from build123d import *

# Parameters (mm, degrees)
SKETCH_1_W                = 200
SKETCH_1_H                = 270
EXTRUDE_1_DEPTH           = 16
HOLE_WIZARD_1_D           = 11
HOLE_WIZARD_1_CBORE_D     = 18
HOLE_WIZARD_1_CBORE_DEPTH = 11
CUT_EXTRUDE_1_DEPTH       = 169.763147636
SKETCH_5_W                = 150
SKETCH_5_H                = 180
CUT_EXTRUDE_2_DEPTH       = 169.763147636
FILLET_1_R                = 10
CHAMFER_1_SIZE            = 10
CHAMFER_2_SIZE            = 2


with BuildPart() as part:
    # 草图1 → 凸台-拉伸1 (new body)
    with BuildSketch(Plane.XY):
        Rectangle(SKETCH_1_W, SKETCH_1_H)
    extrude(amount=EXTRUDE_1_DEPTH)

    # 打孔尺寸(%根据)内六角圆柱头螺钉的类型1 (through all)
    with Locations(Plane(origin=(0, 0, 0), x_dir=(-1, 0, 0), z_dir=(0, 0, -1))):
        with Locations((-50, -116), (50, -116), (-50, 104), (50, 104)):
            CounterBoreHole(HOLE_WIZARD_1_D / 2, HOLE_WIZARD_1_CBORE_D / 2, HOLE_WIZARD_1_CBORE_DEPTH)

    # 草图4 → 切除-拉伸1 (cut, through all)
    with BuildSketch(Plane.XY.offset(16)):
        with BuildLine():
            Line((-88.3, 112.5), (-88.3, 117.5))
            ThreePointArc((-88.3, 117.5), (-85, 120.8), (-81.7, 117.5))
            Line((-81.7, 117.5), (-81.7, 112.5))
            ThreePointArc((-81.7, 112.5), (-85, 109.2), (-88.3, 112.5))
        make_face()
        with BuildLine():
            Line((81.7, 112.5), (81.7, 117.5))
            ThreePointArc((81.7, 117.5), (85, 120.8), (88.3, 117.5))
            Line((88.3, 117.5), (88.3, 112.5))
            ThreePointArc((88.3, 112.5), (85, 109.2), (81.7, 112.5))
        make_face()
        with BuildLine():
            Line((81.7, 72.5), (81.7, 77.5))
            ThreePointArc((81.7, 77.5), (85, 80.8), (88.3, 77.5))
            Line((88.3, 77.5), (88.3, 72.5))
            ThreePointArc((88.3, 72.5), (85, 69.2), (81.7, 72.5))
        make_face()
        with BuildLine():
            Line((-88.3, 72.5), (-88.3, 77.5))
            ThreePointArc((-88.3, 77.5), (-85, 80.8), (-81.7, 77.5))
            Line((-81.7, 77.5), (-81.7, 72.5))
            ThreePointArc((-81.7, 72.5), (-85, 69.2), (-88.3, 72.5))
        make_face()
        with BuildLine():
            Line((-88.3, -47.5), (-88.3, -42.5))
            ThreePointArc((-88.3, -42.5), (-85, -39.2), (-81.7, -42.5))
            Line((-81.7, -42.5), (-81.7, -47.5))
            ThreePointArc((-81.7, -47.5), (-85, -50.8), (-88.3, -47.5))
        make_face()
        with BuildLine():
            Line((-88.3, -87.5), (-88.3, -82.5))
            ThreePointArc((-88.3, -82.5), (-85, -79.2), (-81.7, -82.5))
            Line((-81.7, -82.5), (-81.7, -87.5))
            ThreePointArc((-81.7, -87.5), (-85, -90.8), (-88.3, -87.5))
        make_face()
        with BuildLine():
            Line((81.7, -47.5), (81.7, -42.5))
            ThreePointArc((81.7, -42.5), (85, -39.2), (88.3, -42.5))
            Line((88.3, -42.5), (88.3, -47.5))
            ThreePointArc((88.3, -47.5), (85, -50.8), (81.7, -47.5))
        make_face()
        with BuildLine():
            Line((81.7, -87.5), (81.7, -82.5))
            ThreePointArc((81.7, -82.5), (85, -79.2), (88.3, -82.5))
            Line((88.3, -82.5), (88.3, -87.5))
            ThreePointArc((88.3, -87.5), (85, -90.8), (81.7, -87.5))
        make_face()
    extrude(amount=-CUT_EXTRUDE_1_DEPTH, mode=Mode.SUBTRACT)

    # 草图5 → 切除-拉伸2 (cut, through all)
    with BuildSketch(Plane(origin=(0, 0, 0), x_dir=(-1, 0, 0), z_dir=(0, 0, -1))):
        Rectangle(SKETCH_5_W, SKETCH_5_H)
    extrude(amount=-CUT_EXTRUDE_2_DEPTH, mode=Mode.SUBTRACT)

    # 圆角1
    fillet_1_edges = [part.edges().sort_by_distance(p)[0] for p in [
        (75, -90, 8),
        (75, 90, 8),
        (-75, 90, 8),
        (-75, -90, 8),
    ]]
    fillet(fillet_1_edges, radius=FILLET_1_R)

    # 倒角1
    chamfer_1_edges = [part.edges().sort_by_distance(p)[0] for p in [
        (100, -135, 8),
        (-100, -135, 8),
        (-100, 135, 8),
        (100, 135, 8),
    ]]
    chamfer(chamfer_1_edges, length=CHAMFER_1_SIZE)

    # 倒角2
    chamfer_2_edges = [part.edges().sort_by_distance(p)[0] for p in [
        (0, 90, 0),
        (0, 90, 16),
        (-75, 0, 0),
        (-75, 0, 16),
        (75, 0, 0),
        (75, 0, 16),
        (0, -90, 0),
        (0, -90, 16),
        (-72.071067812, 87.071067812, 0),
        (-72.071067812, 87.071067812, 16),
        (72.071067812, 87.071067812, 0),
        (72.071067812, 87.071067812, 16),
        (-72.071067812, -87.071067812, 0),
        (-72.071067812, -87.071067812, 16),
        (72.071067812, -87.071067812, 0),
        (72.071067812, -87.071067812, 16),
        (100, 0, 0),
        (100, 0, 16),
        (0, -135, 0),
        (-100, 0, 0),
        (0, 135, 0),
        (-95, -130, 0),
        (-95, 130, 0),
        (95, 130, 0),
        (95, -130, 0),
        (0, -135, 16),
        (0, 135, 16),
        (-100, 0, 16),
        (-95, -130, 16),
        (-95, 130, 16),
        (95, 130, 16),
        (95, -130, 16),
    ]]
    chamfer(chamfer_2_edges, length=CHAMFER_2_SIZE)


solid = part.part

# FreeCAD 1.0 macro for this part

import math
import FreeCAD as App
import Part
import Sketcher


def edges_at(feature, points):
    """Names of the edges that pass closest to the given points."""
    edges = feature.Shape.Edges
    near = lambda p: min(range(len(edges)), key=lambda i: edges[i].distToShape(Part.Vertex(*p))[0])
    return sorted({f"Edge{near(p) + 1}" for p in points})

doc = App.newDocument("Part")
body = doc.addObject("PartDesign::Body", "Body")

# Sketch on XY plane
sketch1 = body.newObject("Sketcher::SketchObject", "Sketch")
sketch1.AttachmentSupport = (doc.getObject("XY_Plane"), [""])
sketch1.MapMode = "FlatFace"
sketch1.addGeometry([
    Part.LineSegment(App.Vector(-100, 135, 0), App.Vector(-100, -135, 0)),
    Part.LineSegment(App.Vector(-100, -135, 0), App.Vector(100, -135, 0)),
    Part.LineSegment(App.Vector(100, -135, 0), App.Vector(100, 135, 0)),
    Part.LineSegment(App.Vector(100, 135, 0), App.Vector(-100, 135, 0)),
], False)
sketch1.addConstraint([
    Sketcher.Constraint("Coincident", 0, 2, 1, 1),
    Sketcher.Constraint("Coincident", 1, 2, 2, 1),
    Sketcher.Constraint("Coincident", 2, 2, 3, 1),
    Sketcher.Constraint("Coincident", 3, 2, 0, 1),
    Sketcher.Constraint("Vertical", 0),
    Sketcher.Constraint("Horizontal", 1),
    Sketcher.Constraint("Vertical", 2),
    Sketcher.Constraint("Horizontal", 3),
    Sketcher.Constraint("Symmetric", 0, 2, 2, 2, -1, 1),
    Sketcher.Constraint("DistanceX", 1, 1, 1, 2, 200.0),
    Sketcher.Constraint("DistanceY", 0, 2, 0, 1, 270.0),
])
pad1 = body.newObject("PartDesign::Pad", "Pad")
pad1.Profile = sketch1
pad1.Length = 16

# Sketch on XY plane
sketch2 = body.newObject("Sketcher::SketchObject", "Sketch001")
sketch2.AttachmentSupport = (doc.getObject("XY_Plane"), [""])
sketch2.MapMode = "FlatFace"
sketch2.addGeometry([
    Part.Circle(App.Vector(50, -116, 0), App.Vector(0, 0, 1), 6),
    Part.Circle(App.Vector(-50, -116, 0), App.Vector(0, 0, 1), 6),
    Part.Circle(App.Vector(50, 104, 0), App.Vector(0, 0, 1), 6),
    Part.Circle(App.Vector(-50, 104, 0), App.Vector(0, 0, 1), 6),
], False)
sketch2.addConstraint([
    Sketcher.Constraint("Equal", 0, 1),
    Sketcher.Constraint("Equal", 1, 2),
    Sketcher.Constraint("Equal", 2, 3),
    Sketcher.Constraint("Symmetric", 0, 3, 1, 3, -2),
    Sketcher.Constraint("Symmetric", 2, 3, 3, 3, -2),
    Sketcher.Constraint("Vertical", 0, 3, 2, 3),
    Sketcher.Constraint("Diameter", 0, 11.0),
    Sketcher.Constraint("DistanceX", -1, 1, 0, 3, 50.0),
    Sketcher.Constraint("DistanceY", 0, 3, -1, 1, 116.0),
    Sketcher.Constraint("DistanceY", -1, 1, 2, 3, 104.0),
])
doc.recompute()
hole = body.newObject("PartDesign::Hole", "Hole")
hole.Profile = sketch2
hole.ThreadType = "None"
hole.Diameter = 11
hole.DepthType = "ThroughAll"
hole.HoleCutType = "Counterbore"
hole.HoleCutDiameter = 18
hole.HoleCutDepth = 11
hole.Reversed = True

# Sketch on XY plane
sketch3 = body.newObject("Sketcher::SketchObject", "Sketch002")
sketch3.AttachmentSupport = (doc.getObject("XY_Plane"), [""])
sketch3.MapMode = "FlatFace"
sketch3.AttachmentOffset = App.Placement(App.Vector(0, 0, 16), App.Rotation())
sketch3.addGeometry([
    Part.LineSegment(App.Vector(-88.3, 117.5, 0), App.Vector(-88.3, 112.5, 0)),  # 0
    Part.ArcOfCircle(Part.Circle(App.Vector(-85, 112.5, 0), App.Vector(0, 0, 1), 3.3), math.radians(180), math.radians(360)),  # 1
    Part.LineSegment(App.Vector(-81.7, 112.5, 0), App.Vector(-81.7, 117.5, 0)),  # 2
    Part.ArcOfCircle(Part.Circle(App.Vector(-85, 117.5, 0), App.Vector(0, 0, 1), 3.3), math.radians(0), math.radians(180)),  # 3
    Part.LineSegment(App.Vector(81.7, 117.5, 0), App.Vector(81.7, 112.5, 0)),  # 4
    Part.ArcOfCircle(Part.Circle(App.Vector(85, 112.5, 0), App.Vector(0, 0, 1), 3.3), math.radians(180), math.radians(360)),  # 5
    Part.LineSegment(App.Vector(88.3, 112.5, 0), App.Vector(88.3, 117.5, 0)),  # 6
    Part.ArcOfCircle(Part.Circle(App.Vector(85, 117.5, 0), App.Vector(0, 0, 1), 3.3), math.radians(0), math.radians(180)),  # 7
    Part.LineSegment(App.Vector(81.7, 77.5, 0), App.Vector(81.7, 72.5, 0)),  # 8
    Part.ArcOfCircle(Part.Circle(App.Vector(85, 72.5, 0), App.Vector(0, 0, 1), 3.3), math.radians(180), math.radians(360)),  # 9
    Part.LineSegment(App.Vector(88.3, 72.5, 0), App.Vector(88.3, 77.5, 0)),  # 10
    Part.ArcOfCircle(Part.Circle(App.Vector(85, 77.5, 0), App.Vector(0, 0, 1), 3.3), math.radians(0), math.radians(180)),  # 11
    Part.LineSegment(App.Vector(-88.3, 77.5, 0), App.Vector(-88.3, 72.5, 0)),  # 12
    Part.ArcOfCircle(Part.Circle(App.Vector(-85, 72.5, 0), App.Vector(0, 0, 1), 3.3), math.radians(180), math.radians(360)),  # 13
    Part.LineSegment(App.Vector(-81.7, 72.5, 0), App.Vector(-81.7, 77.5, 0)),  # 14
    Part.ArcOfCircle(Part.Circle(App.Vector(-85, 77.5, 0), App.Vector(0, 0, 1), 3.3), math.radians(0), math.radians(180)),  # 15
    Part.LineSegment(App.Vector(-88.3, -42.5, 0), App.Vector(-88.3, -47.5, 0)),  # 16
    Part.ArcOfCircle(Part.Circle(App.Vector(-85, -47.5, 0), App.Vector(0, 0, 1), 3.3), math.radians(180), math.radians(360)),  # 17
    Part.LineSegment(App.Vector(-81.7, -47.5, 0), App.Vector(-81.7, -42.5, 0)),  # 18
    Part.ArcOfCircle(Part.Circle(App.Vector(-85, -42.5, 0), App.Vector(0, 0, 1), 3.3), math.radians(0), math.radians(180)),  # 19
    Part.LineSegment(App.Vector(-88.3, -82.5, 0), App.Vector(-88.3, -87.5, 0)),  # 20
    Part.ArcOfCircle(Part.Circle(App.Vector(-85, -87.5, 0), App.Vector(0, 0, 1), 3.3), math.radians(180), math.radians(360)),  # 21
    Part.LineSegment(App.Vector(-81.7, -87.5, 0), App.Vector(-81.7, -82.5, 0)),  # 22
    Part.ArcOfCircle(Part.Circle(App.Vector(-85, -82.5, 0), App.Vector(0, 0, 1), 3.3), math.radians(0), math.radians(180)),  # 23
    Part.LineSegment(App.Vector(81.7, -42.5, 0), App.Vector(81.7, -47.5, 0)),  # 24
    Part.ArcOfCircle(Part.Circle(App.Vector(85, -47.5, 0), App.Vector(0, 0, 1), 3.3), math.radians(180), math.radians(360)),  # 25
    Part.LineSegment(App.Vector(88.3, -47.5, 0), App.Vector(88.3, -42.5, 0)),  # 26
    Part.ArcOfCircle(Part.Circle(App.Vector(85, -42.5, 0), App.Vector(0, 0, 1), 3.3), math.radians(0), math.radians(180)),  # 27
    Part.LineSegment(App.Vector(81.7, -82.5, 0), App.Vector(81.7, -87.5, 0)),  # 28
    Part.ArcOfCircle(Part.Circle(App.Vector(85, -87.5, 0), App.Vector(0, 0, 1), 3.3), math.radians(180), math.radians(360)),  # 29
    Part.LineSegment(App.Vector(88.3, -87.5, 0), App.Vector(88.3, -82.5, 0)),  # 30
    Part.ArcOfCircle(Part.Circle(App.Vector(85, -82.5, 0), App.Vector(0, 0, 1), 3.3), math.radians(0), math.radians(180)),  # 31
], False)
sketch3.addConstraint([
    Sketcher.Constraint("Tangent", 0, 2, 1, 1),
    Sketcher.Constraint("Tangent", 1, 2, 2, 1),
    Sketcher.Constraint("Tangent", 2, 2, 3, 1),
    Sketcher.Constraint("Tangent", 3, 2, 0, 1),
    Sketcher.Constraint("Tangent", 4, 2, 5, 1),
    Sketcher.Constraint("Tangent", 5, 2, 6, 1),
    Sketcher.Constraint("Tangent", 6, 2, 7, 1),
    Sketcher.Constraint("Tangent", 7, 2, 4, 1),
    Sketcher.Constraint("Tangent", 8, 2, 9, 1),
    Sketcher.Constraint("Tangent", 9, 2, 10, 1),
    Sketcher.Constraint("Tangent", 10, 2, 11, 1),
    Sketcher.Constraint("Tangent", 11, 2, 8, 1),
    Sketcher.Constraint("Tangent", 12, 2, 13, 1),
    Sketcher.Constraint("Tangent", 13, 2, 14, 1),
    Sketcher.Constraint("Tangent", 14, 2, 15, 1),
    Sketcher.Constraint("Tangent", 15, 2, 12, 1),
    Sketcher.Constraint("Tangent", 16, 2, 17, 1),
    Sketcher.Constraint("Tangent", 17, 2, 18, 1),
    Sketcher.Constraint("Tangent", 18, 2, 19, 1),
    Sketcher.Constraint("Tangent", 19, 2, 16, 1),
    Sketcher.Constraint("Tangent", 20, 2, 21, 1),
    Sketcher.Constraint("Tangent", 21, 2, 22, 1),
    Sketcher.Constraint("Tangent", 22, 2, 23, 1),
    Sketcher.Constraint("Tangent", 23, 2, 20, 1),
    Sketcher.Constraint("Tangent", 24, 2, 25, 1),
    Sketcher.Constraint("Tangent", 25, 2, 26, 1),
    Sketcher.Constraint("Tangent", 26, 2, 27, 1),
    Sketcher.Constraint("Tangent", 27, 2, 24, 1),
    Sketcher.Constraint("Tangent", 28, 2, 29, 1),
    Sketcher.Constraint("Tangent", 29, 2, 30, 1),
    Sketcher.Constraint("Tangent", 30, 2, 31, 1),
    Sketcher.Constraint("Tangent", 31, 2, 28, 1),
    Sketcher.Constraint("Vertical", 0),
    Sketcher.Constraint("Vertical", 2),
    Sketcher.Constraint("Vertical", 4),
    Sketcher.Constraint("Vertical", 6),
    Sketcher.Constraint("Vertical", 8),
    Sketcher.Constraint("Vertical", 10),
    Sketcher.Constraint("Vertical", 12),
    Sketcher.Constraint("Vertical", 14),
    Sketcher.Constraint("Vertical", 16),
    Sketcher.Constraint("Vertical", 18),
    Sketcher.Constraint("Vertical", 20),
    Sketcher.Constraint("Vertical", 22),
    Sketcher.Constraint("Vertical", 24),
    Sketcher.Constraint("Vertical", 26),
    Sketcher.Constraint("Vertical", 28),
    Sketcher.Constraint("Vertical", 30),
    Sketcher.Constraint("Equal", 3, 5),
    Sketcher.Constraint("Equal", 7, 9),
    Sketcher.Constraint("Equal", 11, 13),
    Sketcher.Constraint("Equal", 15, 17),
    Sketcher.Constraint("Equal", 19, 21),
    Sketcher.Constraint("Equal", 23, 25),
    Sketcher.Constraint("Equal", 27, 29),
    Sketcher.Constraint("Symmetric", 1, 3, 5, 3, -2),
    Sketcher.Constraint("Symmetric", 9, 3, 13, 3, -2),
    Sketcher.Constraint("Symmetric", 17, 3, 25, 3, -2),
    Sketcher.Constraint("Symmetric", 21, 3, 29, 3, -2),
    Sketcher.Constraint("Horizontal", 3, 3, 7, 3),
    Sketcher.Constraint("Horizontal", 11, 3, 15, 3),
    Sketcher.Constraint("Horizontal", 19, 3, 27, 3),
    Sketcher.Constraint("Horizontal", 23, 3, 31, 3),
    Sketcher.Constraint("Vertical", 7, 3, 9, 3),
    Sketcher.Constraint("Vertical", 15, 3, 17, 3),
    Sketcher.Constraint("Vertical", 19, 3, 21, 3),
    Sketcher.Constraint("Equal", 6, 8),
    Sketcher.Constraint("Equal", 14, 16),
    Sketcher.Constraint("Equal", 18, 20),
    Sketcher.Constraint("Radius", 1, 3.3),
    Sketcher.Constraint("DistanceY", 0, 2, 0, 1, 5.0),
    Sketcher.Constraint("DistanceX", 1, 3, -1, 1, 85.0),
    Sketcher.Constraint("DistanceY", 9, 3, 5, 3, 40.0),
    Sketcher.Constraint("DistanceY", 17, 3, 13, 3, 120.0),
    Sketcher.Constraint("DistanceY", 21, 3, 17, 3, 40.0),
    Sketcher.Constraint("DistanceY", -1, 1, 1, 3, 112.5),
])
pocket1 = body.newObject("PartDesign::Pocket", "Pocket")
pocket1.Profile = sketch3
pocket1.Type = "ThroughAll"

# Sketch on XY plane
sketch4 = body.newObject("Sketcher::SketchObject", "Sketch003")
sketch4.AttachmentSupport = (doc.getObject("XY_Plane"), [""])
sketch4.MapMode = "FlatFace"
sketch4.addGeometry([
    Part.LineSegment(App.Vector(75, 90, 0), App.Vector(75, -90, 0)),
    Part.LineSegment(App.Vector(75, -90, 0), App.Vector(-75, -90, 0)),
    Part.LineSegment(App.Vector(-75, -90, 0), App.Vector(-75, 90, 0)),
    Part.LineSegment(App.Vector(-75, 90, 0), App.Vector(75, 90, 0)),
], False)
sketch4.addConstraint([
    Sketcher.Constraint("Coincident", 0, 2, 1, 1),
    Sketcher.Constraint("Coincident", 1, 2, 2, 1),
    Sketcher.Constraint("Coincident", 2, 2, 3, 1),
    Sketcher.Constraint("Coincident", 3, 2, 0, 1),
    Sketcher.Constraint("Vertical", 0),
    Sketcher.Constraint("Horizontal", 1),
    Sketcher.Constraint("Vertical", 2),
    Sketcher.Constraint("Horizontal", 3),
    Sketcher.Constraint("Symmetric", 0, 2, 2, 2, -1, 1),
    Sketcher.Constraint("DistanceX", 1, 2, 1, 1, 150.0),
    Sketcher.Constraint("DistanceY", 0, 2, 0, 1, 180.0),
])
pocket2 = body.newObject("PartDesign::Pocket", "Pocket001")
pocket2.Profile = sketch4
pocket2.Type = "ThroughAll"
pocket2.Reversed = True
doc.recompute()

fillet = body.newObject("PartDesign::Fillet", "Fillet")
fillet.Base = (pocket2, edges_at(pocket2, [
    (75, -90, 8),
    (75, 90, 8),
    (-75, 90, 8),
    (-75, -90, 8),
]))
fillet.Radius = 10
doc.recompute()

chamfer = body.newObject("PartDesign::Chamfer", "Chamfer")
chamfer.Base = (fillet, edges_at(fillet, [
    (100, -135, 8),
    (-100, -135, 8),
    (-100, 135, 8),
    (100, 135, 8),
]))
chamfer.Size = 10
doc.recompute()

chamfer2 = body.newObject("PartDesign::Chamfer", "Chamfer001")
chamfer2.Base = (chamfer, edges_at(chamfer, [
    (0, 90, 0),
    (0, 90, 16),
    (-75, 0, 0),
    (-75, 0, 16),
    (75, 0, 0),
    (75, 0, 16),
    (0, -90, 0),
    (0, -90, 16),
    (-72.071, 87.071, 0),
    (-72.071, 87.071, 16),
    (72.071, 87.071, 0),
    (72.071, 87.071, 16),
    (-72.071, -87.071, 0),
    (-72.071, -87.071, 16),
    (72.071, -87.071, 0),
    (72.071, -87.071, 16),
    (100, 0, 0),
    (100, 0, 16),
    (0, -135, 0),
    (-100, 0, 0),
    (0, 135, 0),
    (-95, -130, 0),
    (-95, 130, 0),
    (95, 130, 0),
    (95, -130, 0),
    (0, -135, 16),
    (0, 135, 16),
    (-100, 0, 16),
    (-95, -130, 16),
    (-95, 130, 16),
    (95, 130, 16),
    (95, -130, 16),
]))
chamfer2.Size = 2

doc.recompute()
